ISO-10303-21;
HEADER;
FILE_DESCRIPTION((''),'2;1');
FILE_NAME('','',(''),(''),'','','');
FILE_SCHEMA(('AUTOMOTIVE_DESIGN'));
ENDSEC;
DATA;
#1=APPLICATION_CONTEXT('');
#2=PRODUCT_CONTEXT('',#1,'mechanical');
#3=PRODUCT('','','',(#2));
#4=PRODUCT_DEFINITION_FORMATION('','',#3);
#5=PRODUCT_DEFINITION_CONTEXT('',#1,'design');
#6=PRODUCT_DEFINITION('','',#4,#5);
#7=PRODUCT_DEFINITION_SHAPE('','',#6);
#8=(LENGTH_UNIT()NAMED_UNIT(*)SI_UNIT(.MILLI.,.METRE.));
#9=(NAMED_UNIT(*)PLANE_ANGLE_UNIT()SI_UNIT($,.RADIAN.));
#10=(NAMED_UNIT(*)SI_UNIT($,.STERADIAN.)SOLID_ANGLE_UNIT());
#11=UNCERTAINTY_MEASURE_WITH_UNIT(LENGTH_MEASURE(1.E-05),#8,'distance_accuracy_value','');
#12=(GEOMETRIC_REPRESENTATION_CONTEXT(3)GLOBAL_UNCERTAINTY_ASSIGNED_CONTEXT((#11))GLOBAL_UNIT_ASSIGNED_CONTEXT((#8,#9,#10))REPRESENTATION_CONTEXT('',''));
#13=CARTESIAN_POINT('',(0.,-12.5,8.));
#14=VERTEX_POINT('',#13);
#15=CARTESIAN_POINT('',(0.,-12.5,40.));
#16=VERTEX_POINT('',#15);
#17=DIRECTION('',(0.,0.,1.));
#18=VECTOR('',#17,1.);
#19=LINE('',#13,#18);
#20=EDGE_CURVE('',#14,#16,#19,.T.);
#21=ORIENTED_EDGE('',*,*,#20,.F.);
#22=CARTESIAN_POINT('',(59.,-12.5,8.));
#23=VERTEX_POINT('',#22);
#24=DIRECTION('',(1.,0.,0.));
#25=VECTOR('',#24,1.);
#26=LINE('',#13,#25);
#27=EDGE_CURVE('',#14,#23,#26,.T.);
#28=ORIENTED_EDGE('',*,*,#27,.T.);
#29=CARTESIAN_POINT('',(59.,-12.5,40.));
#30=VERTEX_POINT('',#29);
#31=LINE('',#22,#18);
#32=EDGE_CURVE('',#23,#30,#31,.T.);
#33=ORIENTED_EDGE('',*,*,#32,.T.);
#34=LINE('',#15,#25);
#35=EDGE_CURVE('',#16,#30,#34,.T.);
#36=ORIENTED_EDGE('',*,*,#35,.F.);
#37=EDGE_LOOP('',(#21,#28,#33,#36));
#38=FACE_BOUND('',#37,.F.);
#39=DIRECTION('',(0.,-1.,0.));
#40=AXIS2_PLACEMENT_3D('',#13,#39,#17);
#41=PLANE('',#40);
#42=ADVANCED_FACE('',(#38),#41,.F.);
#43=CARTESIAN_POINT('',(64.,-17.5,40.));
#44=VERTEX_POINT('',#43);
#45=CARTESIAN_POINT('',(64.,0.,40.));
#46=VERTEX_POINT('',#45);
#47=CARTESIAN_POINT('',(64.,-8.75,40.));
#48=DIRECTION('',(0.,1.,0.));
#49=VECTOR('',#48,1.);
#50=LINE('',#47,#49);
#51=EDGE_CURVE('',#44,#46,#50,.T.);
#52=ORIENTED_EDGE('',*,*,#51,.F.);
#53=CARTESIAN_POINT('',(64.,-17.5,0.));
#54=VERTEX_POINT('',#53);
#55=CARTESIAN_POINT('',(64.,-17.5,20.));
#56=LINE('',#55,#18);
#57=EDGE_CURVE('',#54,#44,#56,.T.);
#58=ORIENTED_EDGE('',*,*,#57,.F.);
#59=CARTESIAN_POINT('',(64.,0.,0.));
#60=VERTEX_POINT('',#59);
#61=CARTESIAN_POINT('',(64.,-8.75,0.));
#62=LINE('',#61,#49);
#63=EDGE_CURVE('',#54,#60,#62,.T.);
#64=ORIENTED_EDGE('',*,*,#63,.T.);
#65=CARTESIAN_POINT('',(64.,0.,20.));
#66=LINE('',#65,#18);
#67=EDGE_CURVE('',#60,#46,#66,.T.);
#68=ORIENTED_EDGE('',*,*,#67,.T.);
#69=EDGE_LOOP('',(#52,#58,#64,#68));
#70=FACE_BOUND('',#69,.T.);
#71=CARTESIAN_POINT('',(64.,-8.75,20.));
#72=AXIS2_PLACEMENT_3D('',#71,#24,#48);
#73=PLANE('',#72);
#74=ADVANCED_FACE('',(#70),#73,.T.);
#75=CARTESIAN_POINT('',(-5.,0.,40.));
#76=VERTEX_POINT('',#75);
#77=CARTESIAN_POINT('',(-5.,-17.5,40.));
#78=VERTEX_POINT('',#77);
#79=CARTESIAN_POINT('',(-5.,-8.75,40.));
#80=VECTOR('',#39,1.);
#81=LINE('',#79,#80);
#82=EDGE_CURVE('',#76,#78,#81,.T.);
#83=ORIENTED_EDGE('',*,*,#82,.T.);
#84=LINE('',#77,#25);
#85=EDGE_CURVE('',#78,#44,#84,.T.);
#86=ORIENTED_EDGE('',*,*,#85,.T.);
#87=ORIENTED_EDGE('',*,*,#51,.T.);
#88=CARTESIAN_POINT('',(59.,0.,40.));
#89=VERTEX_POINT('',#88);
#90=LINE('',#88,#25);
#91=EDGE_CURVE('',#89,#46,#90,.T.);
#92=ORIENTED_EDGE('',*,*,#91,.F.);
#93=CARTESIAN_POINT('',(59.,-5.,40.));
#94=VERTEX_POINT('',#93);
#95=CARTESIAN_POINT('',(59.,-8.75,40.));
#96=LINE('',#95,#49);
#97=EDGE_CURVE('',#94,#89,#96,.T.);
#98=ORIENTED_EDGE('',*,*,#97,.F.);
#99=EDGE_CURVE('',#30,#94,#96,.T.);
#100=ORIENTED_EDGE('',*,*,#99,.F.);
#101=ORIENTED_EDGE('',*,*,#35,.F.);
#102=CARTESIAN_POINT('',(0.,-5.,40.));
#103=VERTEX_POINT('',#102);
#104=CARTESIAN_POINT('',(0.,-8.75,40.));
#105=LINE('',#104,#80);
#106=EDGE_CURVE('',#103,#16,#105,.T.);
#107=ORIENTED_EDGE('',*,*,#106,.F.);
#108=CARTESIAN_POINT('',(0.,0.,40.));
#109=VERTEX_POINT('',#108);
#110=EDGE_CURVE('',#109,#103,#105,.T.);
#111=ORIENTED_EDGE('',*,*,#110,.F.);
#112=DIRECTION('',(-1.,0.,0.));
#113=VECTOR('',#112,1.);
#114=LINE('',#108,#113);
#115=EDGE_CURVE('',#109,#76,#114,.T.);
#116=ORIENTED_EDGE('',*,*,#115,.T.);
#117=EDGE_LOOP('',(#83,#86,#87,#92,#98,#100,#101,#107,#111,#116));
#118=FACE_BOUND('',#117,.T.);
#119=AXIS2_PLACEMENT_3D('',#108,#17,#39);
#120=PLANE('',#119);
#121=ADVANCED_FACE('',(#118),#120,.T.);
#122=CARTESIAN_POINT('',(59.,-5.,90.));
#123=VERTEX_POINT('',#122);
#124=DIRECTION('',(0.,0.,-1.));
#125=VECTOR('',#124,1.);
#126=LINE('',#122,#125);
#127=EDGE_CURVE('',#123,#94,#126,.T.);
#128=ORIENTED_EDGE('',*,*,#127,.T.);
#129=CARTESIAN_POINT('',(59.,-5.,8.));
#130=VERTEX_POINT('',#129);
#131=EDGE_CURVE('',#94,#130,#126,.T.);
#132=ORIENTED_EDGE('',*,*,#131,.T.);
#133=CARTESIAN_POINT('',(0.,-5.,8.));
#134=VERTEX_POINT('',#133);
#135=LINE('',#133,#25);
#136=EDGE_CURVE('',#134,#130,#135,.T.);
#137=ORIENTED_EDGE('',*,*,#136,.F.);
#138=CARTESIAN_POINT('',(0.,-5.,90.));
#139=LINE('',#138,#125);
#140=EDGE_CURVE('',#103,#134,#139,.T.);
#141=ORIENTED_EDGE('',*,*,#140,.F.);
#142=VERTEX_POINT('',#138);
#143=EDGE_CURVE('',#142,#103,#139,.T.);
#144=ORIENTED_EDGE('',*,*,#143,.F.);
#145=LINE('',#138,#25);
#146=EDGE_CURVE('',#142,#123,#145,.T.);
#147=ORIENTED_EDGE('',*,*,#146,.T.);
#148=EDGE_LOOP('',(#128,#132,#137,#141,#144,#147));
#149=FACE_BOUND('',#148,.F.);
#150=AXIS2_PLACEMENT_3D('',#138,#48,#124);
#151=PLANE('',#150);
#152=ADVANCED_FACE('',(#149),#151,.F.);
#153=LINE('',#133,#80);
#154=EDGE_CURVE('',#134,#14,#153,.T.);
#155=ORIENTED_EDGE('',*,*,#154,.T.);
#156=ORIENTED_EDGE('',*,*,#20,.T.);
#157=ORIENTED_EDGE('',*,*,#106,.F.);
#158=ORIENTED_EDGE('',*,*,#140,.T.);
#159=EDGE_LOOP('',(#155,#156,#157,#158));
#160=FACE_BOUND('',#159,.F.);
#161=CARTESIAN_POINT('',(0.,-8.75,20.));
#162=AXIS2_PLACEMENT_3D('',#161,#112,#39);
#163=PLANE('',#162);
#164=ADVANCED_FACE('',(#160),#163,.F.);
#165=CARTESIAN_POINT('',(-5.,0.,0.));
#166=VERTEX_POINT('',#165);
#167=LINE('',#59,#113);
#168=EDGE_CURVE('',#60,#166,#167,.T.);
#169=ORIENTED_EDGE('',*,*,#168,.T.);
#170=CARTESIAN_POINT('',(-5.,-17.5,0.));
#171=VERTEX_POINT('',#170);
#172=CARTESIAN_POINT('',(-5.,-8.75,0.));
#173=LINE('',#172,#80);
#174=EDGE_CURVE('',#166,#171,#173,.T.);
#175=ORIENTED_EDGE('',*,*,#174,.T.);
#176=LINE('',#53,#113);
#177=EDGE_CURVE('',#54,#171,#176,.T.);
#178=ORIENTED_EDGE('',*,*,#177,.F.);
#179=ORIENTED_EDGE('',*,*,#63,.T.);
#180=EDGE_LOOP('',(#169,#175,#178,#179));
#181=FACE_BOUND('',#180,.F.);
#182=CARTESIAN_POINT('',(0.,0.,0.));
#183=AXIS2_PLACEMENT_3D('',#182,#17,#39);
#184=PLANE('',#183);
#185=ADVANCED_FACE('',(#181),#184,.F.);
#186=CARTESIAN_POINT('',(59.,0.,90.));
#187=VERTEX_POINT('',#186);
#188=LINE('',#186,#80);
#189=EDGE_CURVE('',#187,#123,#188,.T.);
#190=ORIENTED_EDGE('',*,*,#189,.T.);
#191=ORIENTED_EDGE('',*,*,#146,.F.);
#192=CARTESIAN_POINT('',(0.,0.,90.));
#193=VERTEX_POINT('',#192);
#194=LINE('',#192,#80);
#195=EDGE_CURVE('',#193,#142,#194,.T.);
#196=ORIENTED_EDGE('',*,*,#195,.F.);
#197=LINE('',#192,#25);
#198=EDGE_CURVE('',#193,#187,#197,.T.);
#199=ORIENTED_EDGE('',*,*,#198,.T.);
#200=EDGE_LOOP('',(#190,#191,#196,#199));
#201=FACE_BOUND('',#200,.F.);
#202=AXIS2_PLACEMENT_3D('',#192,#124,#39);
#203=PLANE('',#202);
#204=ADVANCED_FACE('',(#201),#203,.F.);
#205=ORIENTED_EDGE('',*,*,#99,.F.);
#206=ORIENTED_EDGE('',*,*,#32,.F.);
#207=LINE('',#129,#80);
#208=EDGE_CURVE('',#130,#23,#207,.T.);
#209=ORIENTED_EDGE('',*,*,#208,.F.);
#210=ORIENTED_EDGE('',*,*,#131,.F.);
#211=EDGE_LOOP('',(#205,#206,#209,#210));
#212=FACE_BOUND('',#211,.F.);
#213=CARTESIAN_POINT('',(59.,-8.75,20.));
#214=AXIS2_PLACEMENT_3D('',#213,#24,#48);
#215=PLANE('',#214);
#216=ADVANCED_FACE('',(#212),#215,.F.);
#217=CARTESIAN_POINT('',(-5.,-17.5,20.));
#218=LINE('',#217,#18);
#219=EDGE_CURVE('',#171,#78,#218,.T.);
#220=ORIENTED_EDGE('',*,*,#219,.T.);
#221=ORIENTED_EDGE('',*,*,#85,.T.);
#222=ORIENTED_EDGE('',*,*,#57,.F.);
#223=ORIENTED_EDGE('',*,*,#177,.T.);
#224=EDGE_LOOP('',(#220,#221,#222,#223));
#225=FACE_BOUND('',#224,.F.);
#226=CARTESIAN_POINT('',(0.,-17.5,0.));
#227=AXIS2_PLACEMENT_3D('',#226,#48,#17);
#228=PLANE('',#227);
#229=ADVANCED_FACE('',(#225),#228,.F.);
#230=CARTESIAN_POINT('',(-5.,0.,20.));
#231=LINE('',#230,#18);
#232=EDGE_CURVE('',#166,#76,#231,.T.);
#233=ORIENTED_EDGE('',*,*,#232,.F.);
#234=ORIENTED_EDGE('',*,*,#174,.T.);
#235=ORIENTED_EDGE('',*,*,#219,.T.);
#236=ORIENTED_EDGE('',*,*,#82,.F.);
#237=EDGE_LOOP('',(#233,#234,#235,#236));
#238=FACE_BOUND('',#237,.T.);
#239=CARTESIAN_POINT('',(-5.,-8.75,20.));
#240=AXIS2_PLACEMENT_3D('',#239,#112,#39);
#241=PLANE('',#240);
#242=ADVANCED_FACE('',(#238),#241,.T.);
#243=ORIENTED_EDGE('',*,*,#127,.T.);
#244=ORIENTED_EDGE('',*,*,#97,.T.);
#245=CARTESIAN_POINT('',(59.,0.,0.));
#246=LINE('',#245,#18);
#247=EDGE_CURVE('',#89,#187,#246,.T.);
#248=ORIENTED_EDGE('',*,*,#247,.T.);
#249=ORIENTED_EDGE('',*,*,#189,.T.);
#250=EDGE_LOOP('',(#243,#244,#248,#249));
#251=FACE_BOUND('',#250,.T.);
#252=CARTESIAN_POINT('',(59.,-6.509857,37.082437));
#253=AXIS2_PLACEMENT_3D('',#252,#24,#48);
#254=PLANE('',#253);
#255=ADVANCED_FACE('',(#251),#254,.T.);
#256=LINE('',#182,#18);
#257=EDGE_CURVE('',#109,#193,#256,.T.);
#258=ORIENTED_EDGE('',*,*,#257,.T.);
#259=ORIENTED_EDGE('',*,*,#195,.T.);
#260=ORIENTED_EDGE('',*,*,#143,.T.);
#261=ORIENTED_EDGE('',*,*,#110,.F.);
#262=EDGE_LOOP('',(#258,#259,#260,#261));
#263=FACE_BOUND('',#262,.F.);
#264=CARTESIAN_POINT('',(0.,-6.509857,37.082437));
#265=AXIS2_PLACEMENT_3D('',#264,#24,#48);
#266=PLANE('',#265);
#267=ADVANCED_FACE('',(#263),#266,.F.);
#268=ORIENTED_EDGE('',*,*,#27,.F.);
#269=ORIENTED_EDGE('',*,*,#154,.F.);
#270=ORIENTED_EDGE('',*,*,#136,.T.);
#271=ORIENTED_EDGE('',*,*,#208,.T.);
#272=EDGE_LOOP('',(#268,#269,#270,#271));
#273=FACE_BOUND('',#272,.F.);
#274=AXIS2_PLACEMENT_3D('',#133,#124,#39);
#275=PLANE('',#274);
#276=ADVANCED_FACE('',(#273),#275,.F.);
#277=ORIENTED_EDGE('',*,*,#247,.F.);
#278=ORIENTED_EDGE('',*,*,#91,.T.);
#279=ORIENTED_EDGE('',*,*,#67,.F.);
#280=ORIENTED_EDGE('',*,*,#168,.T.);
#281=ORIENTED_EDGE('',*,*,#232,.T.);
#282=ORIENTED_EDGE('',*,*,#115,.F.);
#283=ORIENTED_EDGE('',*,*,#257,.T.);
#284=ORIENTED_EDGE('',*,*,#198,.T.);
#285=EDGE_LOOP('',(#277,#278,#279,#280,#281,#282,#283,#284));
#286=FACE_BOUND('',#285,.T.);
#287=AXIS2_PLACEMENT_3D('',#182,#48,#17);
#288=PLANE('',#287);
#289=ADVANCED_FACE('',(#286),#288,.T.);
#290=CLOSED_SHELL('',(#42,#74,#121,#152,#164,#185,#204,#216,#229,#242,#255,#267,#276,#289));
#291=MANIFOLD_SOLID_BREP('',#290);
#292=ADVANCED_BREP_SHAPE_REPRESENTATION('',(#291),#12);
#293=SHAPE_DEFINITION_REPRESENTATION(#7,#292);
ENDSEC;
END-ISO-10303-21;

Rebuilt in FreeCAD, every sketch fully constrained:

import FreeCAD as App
import Part
import Sketcher

V = App.Vector
Q = App.Units.Quantity


def add_polygon(sketch, points):
    """Adds a closed chain of lines whose ends are joined by coincident constraints."""
    first, n = sketch.GeometryCount, len(points)
    for a, b in zip(points, points[1:] + points[:1]):
        sketch.addGeometry(Part.LineSegment(App.Vector(*a, 0), App.Vector(*b, 0)), False)
    for i in range(n):
        sketch.addConstraint(Sketcher.Constraint("Coincident", first + i, 2, first + (i + 1) % n, 1))

doc = App.newDocument("Part")
body = doc.addObject("PartDesign::Body", "Body")

sketch1 = body.newObject("Sketcher::SketchObject", "Sketch")
sketch1.AttachmentSupport = (doc.getObject("YZ_Plane"), [""])
sketch1.MapMode = "FlatFace"
add_polygon(sketch1, [(-18, 0), (0, 0), (0, 90), (-5, 90), (-5, 8), (-12, 8), (-12, 40), (-18, 40)])
sketch1.addConstraint([
    Sketcher.Constraint("Horizontal", 0),
    Sketcher.Constraint("Vertical", 1),
    Sketcher.Constraint("Horizontal", 2),
    Sketcher.Constraint("Vertical", 3),
    Sketcher.Constraint("Horizontal", 4),
    Sketcher.Constraint("Vertical", 5),
    Sketcher.Constraint("Horizontal", 6),
    Sketcher.Constraint("Vertical", 7),
    Sketcher.Constraint("Coincident", 0, 2, -1, 1),
    Sketcher.Constraint("Equal", 2, 6),
    Sketcher.Constraint("DistanceX", 2, 2, 2, 1, Q("5 mm")),
    Sketcher.Constraint("DistanceY", 1, 1, 1, 2, Q("90 mm")),
    Sketcher.Constraint("DistanceY", 3, 2, 3, 1, Q("82 mm")),
    Sketcher.Constraint("DistanceY", 5, 1, 5, 2, Q("32 mm")),
    Sketcher.Constraint("DistanceX", 0, 1, 0, 2, Q("17.5 mm")),
])
pad1 = body.newObject("PartDesign::Pad", "Pad")
pad1.Profile = sketch1
pad1.Length = 59

sketch2 = body.newObject("Sketcher::SketchObject", "Sketch001")
sketch2.AttachmentSupport = (doc.getObject("YZ_Plane"), [""])
sketch2.MapMode = "FlatFace"
sketch2.AttachmentOffset = App.Placement(V(0, 0, 59), App.Rotation())
add_polygon(sketch2, [(-18, 40), (-18, 0), (0, 0), (0, 40)])
sketch2.addConstraint([
    Sketcher.Constraint("Vertical", 0),
    Sketcher.Constraint("Horizontal", 1),
    Sketcher.Constraint("Vertical", 2),
    Sketcher.Constraint("Horizontal", 3),
    Sketcher.Constraint("Coincident", 1, 2, -1, 1),
    Sketcher.Constraint("DistanceY", 0, 2, 0, 1, Q("40 mm")),
    Sketcher.Constraint("DistanceX", 1, 1, 1, 2, Q("17.5 mm")),
])
pad2 = body.newObject("PartDesign::Pad", "Pad001")
pad2.Profile = sketch2
pad2.Length = 5

sketch3 = body.newObject("Sketcher::SketchObject", "Sketch002")
sketch3.AttachmentSupport = (doc.getObject("YZ_Plane"), [""])
sketch3.MapMode = "FlatFace"
add_polygon(sketch3, [(0, 40), (0, 0), (-18, 0), (-18, 40)])
sketch3.addConstraint([
    Sketcher.Constraint("Vertical", 0),
    Sketcher.Constraint("Horizontal", 1),
    Sketcher.Constraint("Vertical", 2),
    Sketcher.Constraint("Horizontal", 3),
    Sketcher.Constraint("Coincident", 0, 2, -1, 1),
    Sketcher.Constraint("DistanceY", 0, 2, 0, 1, Q("40 mm")),
    Sketcher.Constraint("DistanceX", 1, 2, 1, 1, Q("17.5 mm")),
])
pad3 = body.newObject("PartDesign::Pad", "Pad002")
pad3.Profile = sketch3
pad3.Length = 5
pad3.Reversed = True

doc.recompute()
